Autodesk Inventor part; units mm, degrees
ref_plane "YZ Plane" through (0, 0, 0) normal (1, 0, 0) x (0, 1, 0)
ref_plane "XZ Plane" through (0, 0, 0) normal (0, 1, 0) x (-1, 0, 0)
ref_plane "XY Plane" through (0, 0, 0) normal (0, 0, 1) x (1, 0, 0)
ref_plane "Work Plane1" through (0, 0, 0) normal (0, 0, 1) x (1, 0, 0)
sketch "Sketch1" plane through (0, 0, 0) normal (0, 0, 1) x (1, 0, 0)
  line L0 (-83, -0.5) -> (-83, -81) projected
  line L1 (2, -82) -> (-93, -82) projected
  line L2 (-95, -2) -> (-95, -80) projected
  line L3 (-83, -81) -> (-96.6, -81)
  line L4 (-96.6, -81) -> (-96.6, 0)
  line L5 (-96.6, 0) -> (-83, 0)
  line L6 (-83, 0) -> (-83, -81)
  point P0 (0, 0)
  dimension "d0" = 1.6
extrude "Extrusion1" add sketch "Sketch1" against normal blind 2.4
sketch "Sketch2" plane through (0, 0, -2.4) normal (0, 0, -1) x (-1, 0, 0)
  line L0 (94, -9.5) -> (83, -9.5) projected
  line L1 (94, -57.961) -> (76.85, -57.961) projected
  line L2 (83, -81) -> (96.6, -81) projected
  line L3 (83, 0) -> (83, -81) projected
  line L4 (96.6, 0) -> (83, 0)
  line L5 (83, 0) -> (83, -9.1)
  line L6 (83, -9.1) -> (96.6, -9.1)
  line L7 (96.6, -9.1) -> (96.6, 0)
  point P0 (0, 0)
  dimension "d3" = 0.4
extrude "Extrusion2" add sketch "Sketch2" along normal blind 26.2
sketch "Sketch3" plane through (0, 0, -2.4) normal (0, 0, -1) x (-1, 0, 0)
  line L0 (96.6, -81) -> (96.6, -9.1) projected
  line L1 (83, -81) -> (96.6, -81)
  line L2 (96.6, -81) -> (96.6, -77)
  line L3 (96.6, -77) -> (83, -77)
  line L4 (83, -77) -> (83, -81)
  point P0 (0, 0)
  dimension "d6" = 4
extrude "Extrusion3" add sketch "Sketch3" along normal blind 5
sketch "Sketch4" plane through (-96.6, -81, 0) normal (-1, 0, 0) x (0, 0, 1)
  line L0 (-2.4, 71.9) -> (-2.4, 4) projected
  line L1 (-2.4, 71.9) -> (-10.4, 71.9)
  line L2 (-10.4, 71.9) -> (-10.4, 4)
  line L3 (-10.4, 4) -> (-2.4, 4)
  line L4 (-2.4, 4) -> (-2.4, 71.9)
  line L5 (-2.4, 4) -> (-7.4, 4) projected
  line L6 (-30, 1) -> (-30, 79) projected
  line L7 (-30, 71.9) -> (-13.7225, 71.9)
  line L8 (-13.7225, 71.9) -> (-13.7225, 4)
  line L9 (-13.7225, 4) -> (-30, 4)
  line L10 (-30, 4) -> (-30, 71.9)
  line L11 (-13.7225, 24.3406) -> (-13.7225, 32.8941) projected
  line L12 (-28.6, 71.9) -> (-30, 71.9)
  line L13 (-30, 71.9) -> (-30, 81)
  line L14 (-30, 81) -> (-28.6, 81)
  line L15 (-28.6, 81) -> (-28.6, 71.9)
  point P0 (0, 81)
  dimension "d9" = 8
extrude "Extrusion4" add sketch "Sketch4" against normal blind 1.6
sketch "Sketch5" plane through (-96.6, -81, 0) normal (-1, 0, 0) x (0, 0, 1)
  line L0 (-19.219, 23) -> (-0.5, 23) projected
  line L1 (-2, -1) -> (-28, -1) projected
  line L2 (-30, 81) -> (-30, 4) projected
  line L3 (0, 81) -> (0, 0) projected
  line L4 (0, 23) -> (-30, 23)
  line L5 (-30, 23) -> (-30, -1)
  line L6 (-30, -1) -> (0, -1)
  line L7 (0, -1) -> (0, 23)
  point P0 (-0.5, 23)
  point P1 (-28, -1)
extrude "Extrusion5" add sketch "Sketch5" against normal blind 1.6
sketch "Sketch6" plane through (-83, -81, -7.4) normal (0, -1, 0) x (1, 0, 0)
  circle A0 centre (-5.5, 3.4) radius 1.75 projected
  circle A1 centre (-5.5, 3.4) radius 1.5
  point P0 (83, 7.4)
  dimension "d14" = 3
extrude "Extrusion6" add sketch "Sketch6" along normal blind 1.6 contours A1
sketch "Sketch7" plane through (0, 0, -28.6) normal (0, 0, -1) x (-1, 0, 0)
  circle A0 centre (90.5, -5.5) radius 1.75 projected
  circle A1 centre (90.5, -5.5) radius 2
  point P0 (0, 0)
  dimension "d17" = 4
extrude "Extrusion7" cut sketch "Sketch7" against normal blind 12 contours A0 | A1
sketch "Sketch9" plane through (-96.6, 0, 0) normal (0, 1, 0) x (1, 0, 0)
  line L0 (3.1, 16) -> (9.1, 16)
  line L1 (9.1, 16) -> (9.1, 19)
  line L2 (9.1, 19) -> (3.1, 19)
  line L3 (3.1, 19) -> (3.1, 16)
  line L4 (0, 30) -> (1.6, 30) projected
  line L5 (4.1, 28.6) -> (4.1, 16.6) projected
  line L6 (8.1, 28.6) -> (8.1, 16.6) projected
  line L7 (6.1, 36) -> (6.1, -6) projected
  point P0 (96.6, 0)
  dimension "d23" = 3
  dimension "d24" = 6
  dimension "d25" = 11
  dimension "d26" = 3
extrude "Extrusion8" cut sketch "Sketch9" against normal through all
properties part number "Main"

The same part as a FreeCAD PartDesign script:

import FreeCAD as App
import Part
import Sketcher
Q = App.Units.Quantity


def add_polygon(sketch, points):
    """Adds a closed chain of lines whose ends are joined by coincident constraints."""
    first, n = sketch.GeometryCount, len(points)
    for a, b in zip(points, points[1:] + points[:1]):
        sketch.addGeometry(Part.LineSegment(App.Vector(*a, 0), App.Vector(*b, 0)), False)
    for i in range(n):
        sketch.addConstraint(Sketcher.Constraint("Coincident", first + i, 2, first + (i + 1) % n, 1))

doc = App.newDocument("Part")
body = doc.addObject("PartDesign::Body", "Body")

# Sketch on XY plane
sketch1 = body.newObject("Sketcher::SketchObject", "Sketch")
sketch1.AttachmentSupport = (doc.getObject("XY_Plane"), [""])
sketch1.MapMode = "FlatFace"
add_polygon(sketch1, [(-83, -81), (-83, 0), (-97, 0), (-97, -81)])  # lines 0-3
sketch1.addConstraint(Sketcher.Constraint("Vertical", 0))
sketch1.addConstraint(Sketcher.Constraint("Horizontal", 1))
sketch1.addConstraint(Sketcher.Constraint("Vertical", 2))
sketch1.addConstraint(Sketcher.Constraint("Horizontal", 3))
sketch1.addConstraint(Sketcher.Constraint("PointOnObject", 0, 2, -1))
sketch1.addConstraint(Sketcher.Constraint("DistanceY", 0, 1, 0, 2, Q("81 mm")))
sketch1.addConstraint(Sketcher.Constraint("DistanceX", 1, 2, 1, 1, Q("13.6 mm")))
sketch1.addConstraint(Sketcher.Constraint("DistanceX", 0, 2, -1, 1, Q("83 mm")))
pad1 = body.newObject("PartDesign::Pad", "Pad")
pad1.Profile = sketch1
pad1.Length = 2.4
pad1.Reversed = True

# Sketch on XY plane
sketch2 = body.newObject("Sketcher::SketchObject", "Sketch001")
sketch2.AttachmentSupport = (doc.getObject("XY_Plane"), [""])
sketch2.MapMode = "FlatFace"
sketch2.AttachmentOffset = App.Placement(App.Vector(0, 0, -2.4), App.Rotation())
add_polygon(sketch2, [(-97, 0), (-83, 0), (-83, -9), (-97, -9)])  # lines 0-3
sketch2.addConstraint(Sketcher.Constraint("Horizontal", 0))
sketch2.addConstraint(Sketcher.Constraint("Vertical", 1))
sketch2.addConstraint(Sketcher.Constraint("Horizontal", 2))
sketch2.addConstraint(Sketcher.Constraint("Vertical", 3))
sketch2.addConstraint(Sketcher.Constraint("PointOnObject", 0, 2, -1))
sketch2.addConstraint(Sketcher.Constraint("DistanceX", 0, 1, 0, 2, Q("13.6 mm")))
sketch2.addConstraint(Sketcher.Constraint("DistanceY", 1, 2, 1, 1, Q("9.1 mm")))
sketch2.addConstraint(Sketcher.Constraint("DistanceX", 0, 2, -1, 1, Q("83 mm")))
pad2 = body.newObject("PartDesign::Pad", "Pad001")
pad2.Profile = sketch2
pad2.Length = 26.2
pad2.Reversed = True

# Sketch on XY plane
sketch3 = body.newObject("Sketcher::SketchObject", "Sketch002")
sketch3.AttachmentSupport = (doc.getObject("XY_Plane"), [""])
sketch3.MapMode = "FlatFace"
sketch3.AttachmentOffset = App.Placement(App.Vector(0, 0, -2.4), App.Rotation())
add_polygon(sketch3, [(-83, -81), (-96.6, -81), (-96.6, -77), (-83, -77)])  # lines 0-3
sketch3.addConstraint(Sketcher.Constraint("Horizontal", 0))
sketch3.addConstraint(Sketcher.Constraint("Vertical", 1))
sketch3.addConstraint(Sketcher.Constraint("Horizontal", 2))
sketch3.addConstraint(Sketcher.Constraint("Vertical", 3))
sketch3.addConstraint(Sketcher.Constraint("DistanceY", 1, 1, 1, 2, Q("4 mm")))
sketch3.addConstraint(Sketcher.Constraint("DistanceX", 0, 2, 0, 1, Q("13.6 mm")))
sketch3.addConstraint(Sketcher.Constraint("DistanceY", 0, 2, -1, 1, Q("81 mm")))
sketch3.addConstraint(Sketcher.Constraint("DistanceX", 2, 2, -1, 1, Q("83 mm")))
pad3 = body.newObject("PartDesign::Pad", "Pad002")
pad3.Profile = sketch3
pad3.Length = 5
pad3.Reversed = True

# Sketch on YZ plane
sketch4 = body.newObject("Sketcher::SketchObject", "Sketch003")
sketch4.AttachmentSupport = (doc.getObject("YZ_Plane"), [""])
sketch4.MapMode = "FlatFace"
sketch4.AttachmentOffset = App.Placement(App.Vector(0, 0, -96.6), App.Rotation())
add_polygon(sketch4, [(-77, -2.4), (-9.1, -2.4), (-9.1, -10.4), (-77, -10.4)])  # lines 0-3
add_polygon(sketch4, [(-77, -30), (-77, -13.7), (-9.1, -13.7), (-9.1, -28.6), (0, -28.6), (0, -30)])  # lines 4-9
sketch4.addConstraint(Sketcher.Constraint("Horizontal", 0))
sketch4.addConstraint(Sketcher.Constraint("Vertical", 1))
sketch4.addConstraint(Sketcher.Constraint("Horizontal", 2))
sketch4.addConstraint(Sketcher.Constraint("Vertical", 3))
sketch4.addConstraint(Sketcher.Constraint("Vertical", 4))
sketch4.addConstraint(Sketcher.Constraint("Horizontal", 5))
sketch4.addConstraint(Sketcher.Constraint("Vertical", 6))
sketch4.addConstraint(Sketcher.Constraint("Horizontal", 7))
sketch4.addConstraint(Sketcher.Constraint("Vertical", 8))
sketch4.addConstraint(Sketcher.Constraint("Horizontal", 9))
sketch4.addConstraint(Sketcher.Constraint("PointOnObject", 7, 2, -2))
sketch4.addConstraint(Sketcher.Constraint("Vertical", 3, 2, 4, 2))
sketch4.addConstraint(Sketcher.Constraint("Vertical", 1, 2, 5, 2))
sketch4.addConstraint(Sketcher.Constraint("DistanceY", 1, 2, 1, 1, Q("8 mm")))
sketch4.addConstraint(Sketcher.Constraint("DistanceX", 9, 2, 9, 1, Q("77 mm")))
sketch4.addConstraint(Sketcher.Constraint("DistanceX", 0, 1, 0, 2, Q("67.9 mm")))
sketch4.addConstraint(Sketcher.Constraint("DistanceY", 8, 2, 8, 1, Q("1.4 mm")))
sketch4.addConstraint(Sketcher.Constraint("DistanceY", 8, 2, -1, 1, Q("30 mm")))
sketch4.addConstraint(Sketcher.Constraint("DistanceY", 0, 2, -1, 1, Q("2.4 mm")))
sketch4.addConstraint(Sketcher.Constraint("DistanceY", 4, 1, 4, 2, Q("16.2775 mm")))
pad4 = body.newObject("PartDesign::Pad", "Pad003")
pad4.Profile = sketch4
pad4.Length = 1.6

# Sketch on YZ plane
sketch5 = body.newObject("Sketcher::SketchObject", "Sketch004")
sketch5.AttachmentSupport = (doc.getObject("YZ_Plane"), [""])
sketch5.MapMode = "FlatFace"
sketch5.AttachmentOffset = App.Placement(App.Vector(0, 0, -96.6), App.Rotation())
add_polygon(sketch5, [(-58, 0), (-58, -30), (-82, -30), (-82, 0)])  # lines 0-3
sketch5.addConstraint(Sketcher.Constraint("Vertical", 0))
sketch5.addConstraint(Sketcher.Constraint("Horizontal", 1))
sketch5.addConstraint(Sketcher.Constraint("Vertical", 2))
sketch5.addConstraint(Sketcher.Constraint("Horizontal", 3))
sketch5.addConstraint(Sketcher.Constraint("PointOnObject", 2, 2, -1))
sketch5.addConstraint(Sketcher.Constraint("DistanceX", 1, 2, 1, 1, Q("24 mm")))
sketch5.addConstraint(Sketcher.Constraint("DistanceY", 0, 2, 0, 1, Q("30 mm")))
sketch5.addConstraint(Sketcher.Constraint("DistanceX", 0, 2, -1, 1, Q("58 mm")))
pad5 = body.newObject("PartDesign::Pad", "Pad004")
pad5.Profile = sketch5
pad5.Length = 1.6

# Sketch on XZ plane
sketch6 = body.newObject("Sketcher::SketchObject", "Sketch005")
sketch6.AttachmentSupport = (doc.getObject("XZ_Plane"), [""])
sketch6.MapMode = "FlatFace"
sketch6.AttachmentOffset = App.Placement(App.Vector(0, 0, 81), App.Rotation())
sketch6.addGeometry(Part.Circle(App.Vector(-88.5, -4, 0), App.Vector(0, 0, 1), 1.5), False)
sketch6.addConstraint(Sketcher.Constraint("Diameter", 0, Q("3 mm")))
sketch6.addConstraint(Sketcher.Constraint("DistanceY", 0, 3, -1, 1, Q("4 mm")))
sketch6.addConstraint(Sketcher.Constraint("DistanceX", 0, 3, -1, 1, Q("88.5 mm")))
pad6 = body.newObject("PartDesign::Pad", "Pad005")
pad6.Profile = sketch6
pad6.Length = 1.6

# Sketch on XY plane
sketch7 = body.newObject("Sketcher::SketchObject", "Sketch006")
sketch7.AttachmentSupport = (doc.getObject("XY_Plane"), [""])
sketch7.MapMode = "FlatFace"
sketch7.AttachmentOffset = App.Placement(App.Vector(0, 0, -28.6), App.Rotation())
sketch7.addGeometry(Part.Circle(App.Vector(-90.5, -5.5, 0), App.Vector(0, 0, 1), 2), False)
sketch7.addConstraint(Sketcher.Constraint("Diameter", 0, Q("4 mm")))
sketch7.addConstraint(Sketcher.Constraint("DistanceX", 0, 3, -1, 1, Q("90.5 mm")))
sketch7.addConstraint(Sketcher.Constraint("DistanceY", 0, 3, -1, 1, Q("5.5 mm")))
pocket1 = body.newObject("PartDesign::Pocket", "Pocket")
pocket1.Profile = sketch7
pocket1.Length = 12
pocket1.Reversed = True

# Sketch on XZ plane
sketch8 = body.newObject("Sketcher::SketchObject", "Sketch007")
sketch8.AttachmentSupport = (doc.getObject("XZ_Plane"), [""])
sketch8.MapMode = "FlatFace"
add_polygon(sketch8, [(-93.5, -19), (-93.5, -16), (-87.5, -16), (-87.5, -19)])  # lines 0-3
sketch8.addConstraint(Sketcher.Constraint("Vertical", 0))
sketch8.addConstraint(Sketcher.Constraint("Horizontal", 1))
sketch8.addConstraint(Sketcher.Constraint("Vertical", 2))
sketch8.addConstraint(Sketcher.Constraint("Horizontal", 3))
sketch8.addConstraint(Sketcher.Constraint("DistanceX", 1, 1, 1, 2, Q("6 mm")))
sketch8.addConstraint(Sketcher.Constraint("DistanceY", 0, 1, 0, 2, Q("3 mm")))
sketch8.addConstraint(Sketcher.Constraint("DistanceY", 0, 2, -1, 1, Q("16 mm")))
sketch8.addConstraint(Sketcher.Constraint("DistanceX", 0, 2, -1, 1, Q("93.5 mm")))
pocket2 = body.newObject("PartDesign::Pocket", "Pocket001")
pocket2.Profile = sketch8
pocket2.Type = "ThroughAll"
pocket2.Reversed = True

doc.recompute()
